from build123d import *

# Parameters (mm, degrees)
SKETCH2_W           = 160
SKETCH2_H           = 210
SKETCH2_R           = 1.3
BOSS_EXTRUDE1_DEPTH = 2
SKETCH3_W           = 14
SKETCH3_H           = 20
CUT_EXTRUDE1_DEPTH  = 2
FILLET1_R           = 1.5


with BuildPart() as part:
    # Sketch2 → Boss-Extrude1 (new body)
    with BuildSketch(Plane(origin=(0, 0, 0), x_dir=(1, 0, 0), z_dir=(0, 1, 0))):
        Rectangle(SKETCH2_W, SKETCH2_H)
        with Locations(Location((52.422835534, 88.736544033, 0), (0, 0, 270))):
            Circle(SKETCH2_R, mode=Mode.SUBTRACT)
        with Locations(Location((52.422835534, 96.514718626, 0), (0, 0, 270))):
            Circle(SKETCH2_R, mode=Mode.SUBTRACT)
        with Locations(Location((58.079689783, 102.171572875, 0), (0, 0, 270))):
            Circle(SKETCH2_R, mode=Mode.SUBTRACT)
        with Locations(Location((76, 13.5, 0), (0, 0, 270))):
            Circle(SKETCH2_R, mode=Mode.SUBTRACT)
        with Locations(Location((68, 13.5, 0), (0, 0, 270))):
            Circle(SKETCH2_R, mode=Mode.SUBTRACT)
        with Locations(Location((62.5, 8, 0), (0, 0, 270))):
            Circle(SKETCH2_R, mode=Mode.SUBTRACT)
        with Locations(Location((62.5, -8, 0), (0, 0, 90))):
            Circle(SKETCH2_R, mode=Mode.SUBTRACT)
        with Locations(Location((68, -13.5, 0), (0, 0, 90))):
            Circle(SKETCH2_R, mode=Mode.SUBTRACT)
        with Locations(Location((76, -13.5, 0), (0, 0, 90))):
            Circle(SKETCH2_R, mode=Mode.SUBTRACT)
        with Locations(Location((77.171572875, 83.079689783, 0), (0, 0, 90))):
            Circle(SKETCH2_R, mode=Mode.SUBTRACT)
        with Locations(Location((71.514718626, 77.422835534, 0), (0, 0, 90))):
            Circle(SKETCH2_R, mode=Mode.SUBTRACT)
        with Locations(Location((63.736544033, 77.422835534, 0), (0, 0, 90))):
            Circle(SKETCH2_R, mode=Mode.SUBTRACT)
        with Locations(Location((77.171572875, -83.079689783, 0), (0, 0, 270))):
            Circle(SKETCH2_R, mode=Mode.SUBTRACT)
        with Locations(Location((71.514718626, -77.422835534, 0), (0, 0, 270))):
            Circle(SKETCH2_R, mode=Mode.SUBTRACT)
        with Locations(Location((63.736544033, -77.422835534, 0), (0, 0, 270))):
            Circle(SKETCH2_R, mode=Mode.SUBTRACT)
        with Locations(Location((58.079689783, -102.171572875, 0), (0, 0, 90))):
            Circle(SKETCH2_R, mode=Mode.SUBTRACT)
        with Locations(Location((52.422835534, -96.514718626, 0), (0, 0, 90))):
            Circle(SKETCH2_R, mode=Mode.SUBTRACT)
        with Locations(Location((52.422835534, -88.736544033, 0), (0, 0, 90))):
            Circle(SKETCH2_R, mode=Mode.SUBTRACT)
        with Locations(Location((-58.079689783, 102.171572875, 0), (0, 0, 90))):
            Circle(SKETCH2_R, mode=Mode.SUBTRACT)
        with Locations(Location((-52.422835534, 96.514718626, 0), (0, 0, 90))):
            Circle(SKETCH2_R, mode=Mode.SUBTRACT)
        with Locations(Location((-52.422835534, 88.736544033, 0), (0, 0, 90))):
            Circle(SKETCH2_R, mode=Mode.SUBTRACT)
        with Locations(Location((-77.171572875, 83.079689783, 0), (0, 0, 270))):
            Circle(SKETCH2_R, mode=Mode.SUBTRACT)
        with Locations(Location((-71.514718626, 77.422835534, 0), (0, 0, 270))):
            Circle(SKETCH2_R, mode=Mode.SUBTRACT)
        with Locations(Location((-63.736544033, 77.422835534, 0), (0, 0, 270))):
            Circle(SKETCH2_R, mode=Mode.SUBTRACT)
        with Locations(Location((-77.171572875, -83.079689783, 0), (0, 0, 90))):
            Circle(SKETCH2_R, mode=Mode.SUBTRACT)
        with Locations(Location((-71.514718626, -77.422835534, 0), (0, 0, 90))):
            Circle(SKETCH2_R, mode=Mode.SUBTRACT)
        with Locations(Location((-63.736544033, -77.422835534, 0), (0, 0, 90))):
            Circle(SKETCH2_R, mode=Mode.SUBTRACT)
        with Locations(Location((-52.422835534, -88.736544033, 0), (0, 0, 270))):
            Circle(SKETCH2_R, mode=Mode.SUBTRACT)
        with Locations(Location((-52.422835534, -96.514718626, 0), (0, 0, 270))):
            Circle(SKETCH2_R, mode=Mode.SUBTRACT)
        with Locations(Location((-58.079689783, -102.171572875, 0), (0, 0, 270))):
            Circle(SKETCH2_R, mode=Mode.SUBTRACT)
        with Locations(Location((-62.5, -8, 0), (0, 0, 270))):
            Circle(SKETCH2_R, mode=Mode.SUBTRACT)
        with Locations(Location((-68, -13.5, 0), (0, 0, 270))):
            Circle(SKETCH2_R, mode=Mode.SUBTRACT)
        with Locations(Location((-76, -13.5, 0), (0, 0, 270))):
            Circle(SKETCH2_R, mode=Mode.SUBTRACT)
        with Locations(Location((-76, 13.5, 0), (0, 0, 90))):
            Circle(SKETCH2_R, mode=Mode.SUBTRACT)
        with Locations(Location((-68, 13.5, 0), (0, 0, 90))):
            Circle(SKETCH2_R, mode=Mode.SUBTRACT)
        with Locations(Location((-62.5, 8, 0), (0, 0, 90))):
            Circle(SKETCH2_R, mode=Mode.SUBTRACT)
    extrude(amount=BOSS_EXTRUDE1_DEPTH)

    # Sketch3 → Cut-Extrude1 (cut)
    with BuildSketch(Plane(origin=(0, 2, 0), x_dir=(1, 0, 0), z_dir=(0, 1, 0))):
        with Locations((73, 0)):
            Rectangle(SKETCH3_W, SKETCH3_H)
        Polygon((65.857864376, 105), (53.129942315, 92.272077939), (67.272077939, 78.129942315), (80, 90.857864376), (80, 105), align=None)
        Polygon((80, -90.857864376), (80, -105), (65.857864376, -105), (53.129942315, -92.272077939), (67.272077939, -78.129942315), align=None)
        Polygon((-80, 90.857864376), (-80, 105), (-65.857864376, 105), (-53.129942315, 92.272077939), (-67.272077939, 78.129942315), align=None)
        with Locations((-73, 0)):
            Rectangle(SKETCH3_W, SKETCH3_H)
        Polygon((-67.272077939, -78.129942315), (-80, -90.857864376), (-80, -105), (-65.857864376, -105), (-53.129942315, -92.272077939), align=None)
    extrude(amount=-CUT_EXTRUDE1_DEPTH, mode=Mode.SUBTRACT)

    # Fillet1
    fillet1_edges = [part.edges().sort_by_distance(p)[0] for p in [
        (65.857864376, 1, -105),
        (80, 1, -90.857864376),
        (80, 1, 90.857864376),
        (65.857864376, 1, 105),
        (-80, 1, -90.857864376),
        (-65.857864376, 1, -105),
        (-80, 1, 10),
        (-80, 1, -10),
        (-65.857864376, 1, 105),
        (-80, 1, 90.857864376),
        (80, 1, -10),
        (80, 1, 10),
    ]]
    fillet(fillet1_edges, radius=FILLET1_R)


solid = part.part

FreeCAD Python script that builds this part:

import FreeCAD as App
import Part
import Sketcher
from FreeCAD import Vector
Q = App.Units.Quantity


def edges_at(feature, points):
    """Names of the edges that pass closest to the given points."""
    edges = feature.Shape.Edges
    near = lambda p: min(range(len(edges)), key=lambda i: edges[i].distToShape(Part.Vertex(*p))[0])
    return sorted({f"Edge{near(p) + 1}" for p in points})


def add_polygon(sketch, points):
    """Adds a closed chain of lines whose ends are joined by coincident constraints."""
    first, n = sketch.GeometryCount, len(points)
    for a, b in zip(points, points[1:] + points[:1]):
        sketch.addGeometry(Part.LineSegment(App.Vector(*a, 0), App.Vector(*b, 0)), False)
    for i in range(n):
        sketch.addConstraint(Sketcher.Constraint("Coincident", first + i, 2, first + (i + 1) % n, 1))

doc = App.newDocument("Part")
body = doc.addObject("PartDesign::Body", "Body")

# Sketch on XZ plane
sketch1 = body.newObject("Sketcher::SketchObject", "Sketch")
sketch1.AttachmentSupport = (doc.getObject("XZ_Plane"), [""])
sketch1.MapMode = "FlatFace"
add_polygon(sketch1, [(-80, -105), (-80, 105), (80, 105), (80, -105)])  # lines 0-3
sketch1.addGeometry(Part.Circle(Vector(-77.171573, 83.07969, 0), Vector(0, 0, 1), 1.3), False)  # 4
sketch1.addGeometry(Part.Circle(Vector(-58.07969, 102.171573, 0), Vector(0, 0, 1), 1.3), False)  # 5
sketch1.addGeometry(Part.Circle(Vector(-52.422836, 96.514719, 0), Vector(0, 0, 1), 1.3), False)  # 6
sketch1.addGeometry(Part.Circle(Vector(-52.422836, 88.736544, 0), Vector(0, 0, 1), 1.3), False)  # 7
sketch1.addGeometry(Part.Circle(Vector(-71.514719, 77.422836, 0), Vector(0, 0, 1), 1.3), False)  # 8
sketch1.addGeometry(Part.Circle(Vector(-63.736544, 77.422836, 0), Vector(0, 0, 1), 1.3), False)  # 9
sketch1.addGeometry(Part.Circle(Vector(-76, 13.5, 0), Vector(0, 0, 1), 1.3), False)  # 10
sketch1.addGeometry(Part.Circle(Vector(-68, 13.5, 0), Vector(0, 0, 1), 1.3), False)  # 11
sketch1.addGeometry(Part.Circle(Vector(-62.5, 8, 0), Vector(0, 0, 1), 1.3), False)  # 12
sketch1.addGeometry(Part.Circle(Vector(58.07969, 102.171573, 0), Vector(0, 0, 1), 1.3), False)  # 13
sketch1.addGeometry(Part.Circle(Vector(52.422836, 96.514719, 0), Vector(0, 0, 1), 1.3), False)  # 14
sketch1.addGeometry(Part.Circle(Vector(52.422836, 88.736544, 0), Vector(0, 0, 1), 1.3), False)  # 15
sketch1.addGeometry(Part.Circle(Vector(77.171573, 83.07969, 0), Vector(0, 0, 1), 1.3), False)  # 16
sketch1.addGeometry(Part.Circle(Vector(63.736544, 77.422836, 0), Vector(0, 0, 1), 1.3), False)  # 17
sketch1.addGeometry(Part.Circle(Vector(71.514719, 77.422836, 0), Vector(0, 0, 1), 1.3), False)  # 18
sketch1.addGeometry(Part.Circle(Vector(68, 13.5, 0), Vector(0, 0, 1), 1.3), False)  # 19
sketch1.addGeometry(Part.Circle(Vector(76, 13.5, 0), Vector(0, 0, 1), 1.3), False)  # 20
sketch1.addGeometry(Part.Circle(Vector(62.5, 8, 0), Vector(0, 0, 1), 1.3), False)  # 21
sketch1.addGeometry(Part.Circle(Vector(-62.5, -8, 0), Vector(0, 0, 1), 1.3), False)  # 22
sketch1.addGeometry(Part.Circle(Vector(-76, -13.5, 0), Vector(0, 0, 1), 1.3), False)  # 23
sketch1.addGeometry(Part.Circle(Vector(-68, -13.5, 0), Vector(0, 0, 1), 1.3), False)  # 24
sketch1.addGeometry(Part.Circle(Vector(-71.514719, -77.422836, 0), Vector(0, 0, 1), 1.3), False)  # 25
sketch1.addGeometry(Part.Circle(Vector(-63.736544, -77.422836, 0), Vector(0, 0, 1), 1.3), False)  # 26
sketch1.addGeometry(Part.Circle(Vector(-77.171573, -83.07969, 0), Vector(0, 0, 1), 1.3), False)  # 27
sketch1.addGeometry(Part.Circle(Vector(-52.422836, -88.736544, 0), Vector(0, 0, 1), 1.3), False)  # 28
sketch1.addGeometry(Part.Circle(Vector(-52.422836, -96.514719, 0), Vector(0, 0, 1), 1.3), False)  # 29
sketch1.addGeometry(Part.Circle(Vector(-58.07969, -102.171573, 0), Vector(0, 0, 1), 1.3), False)  # 30
sketch1.addGeometry(Part.Circle(Vector(62.5, -8, 0), Vector(0, 0, 1), 1.3), False)  # 31
sketch1.addGeometry(Part.Circle(Vector(68, -13.5, 0), Vector(0, 0, 1), 1.3), False)  # 32
sketch1.addGeometry(Part.Circle(Vector(76, -13.5, 0), Vector(0, 0, 1), 1.3), False)  # 33
sketch1.addGeometry(Part.Circle(Vector(63.736544, -77.422836, 0), Vector(0, 0, 1), 1.3), False)  # 34
sketch1.addGeometry(Part.Circle(Vector(71.514719, -77.422836, 0), Vector(0, 0, 1), 1.3), False)  # 35
sketch1.addGeometry(Part.Circle(Vector(52.422836, -88.736544, 0), Vector(0, 0, 1), 1.3), False)  # 36
sketch1.addGeometry(Part.Circle(Vector(52.422836, -96.514719, 0), Vector(0, 0, 1), 1.3), False)  # 37
sketch1.addGeometry(Part.Circle(Vector(58.07969, -102.171573, 0), Vector(0, 0, 1), 1.3), False)  # 38
sketch1.addGeometry(Part.Circle(Vector(77.171573, -83.07969, 0), Vector(0, 0, 1), 1.3), False)  # 39
sketch1.addConstraint([
    Sketcher.Constraint("Vertical", 0),
    Sketcher.Constraint("Horizontal", 1),
    Sketcher.Constraint("Vertical", 2),
    Sketcher.Constraint("Horizontal", 3),
    Sketcher.Constraint("Equal", 4, 5),
    Sketcher.Constraint("Equal", 5, 6),
    Sketcher.Constraint("Equal", 6, 7),
    Sketcher.Constraint("Equal", 7, 8),
    Sketcher.Constraint("Equal", 8, 9),
    Sketcher.Constraint("Equal", 9, 10),
    Sketcher.Constraint("Equal", 10, 11),
    Sketcher.Constraint("Equal", 11, 12),
    Sketcher.Constraint("Equal", 12, 13),
    Sketcher.Constraint("Equal", 13, 14),
    Sketcher.Constraint("Equal", 14, 15),
    Sketcher.Constraint("Equal", 15, 16),
    Sketcher.Constraint("Equal", 16, 17),
    Sketcher.Constraint("Equal", 17, 18),
    Sketcher.Constraint("Equal", 18, 19),
    Sketcher.Constraint("Equal", 19, 20),
    Sketcher.Constraint("Equal", 20, 21),
    Sketcher.Constraint("Equal", 21, 22),
    Sketcher.Constraint("Equal", 22, 23),
    Sketcher.Constraint("Equal", 23, 24),
    Sketcher.Constraint("Equal", 24, 25),
    Sketcher.Constraint("Equal", 25, 26),
    Sketcher.Constraint("Equal", 26, 27),
    Sketcher.Constraint("Equal", 27, 28),
    Sketcher.Constraint("Equal", 28, 29),
    Sketcher.Constraint("Equal", 29, 30),
    Sketcher.Constraint("Equal", 30, 31),
    Sketcher.Constraint("Equal", 31, 32),
    Sketcher.Constraint("Equal", 32, 33),
    Sketcher.Constraint("Equal", 33, 34),
    Sketcher.Constraint("Equal", 34, 35),
    Sketcher.Constraint("Equal", 35, 36),
    Sketcher.Constraint("Equal", 36, 37),
    Sketcher.Constraint("Equal", 37, 38),
    Sketcher.Constraint("Equal", 38, 39),
    Sketcher.Constraint("Symmetric", 21, 3, 22, 3, -1, 1),
    Sketcher.Constraint("Symmetric", 20, 3, 23, 3, -1, 1),
    Sketcher.Constraint("Symmetric", 19, 3, 24, 3, -1, 1),
    Sketcher.Constraint("Symmetric", 18, 3, 25, 3, -1, 1),
    Sketcher.Constraint("Symmetric", 17, 3, 26, 3, -1, 1),
    Sketcher.Constraint("Symmetric", 16, 3, 27, 3, -1, 1),
    Sketcher.Constraint("Symmetric", 15, 3, 28, 3, -1, 1),
    Sketcher.Constraint("Symmetric", 14, 3, 29, 3, -1, 1),
    Sketcher.Constraint("Symmetric", 13, 3, 30, 3, -1, 1),
    Sketcher.Constraint("Symmetric", 12, 3, 31, 3, -1, 1),
    Sketcher.Constraint("Symmetric", 11, 3, 32, 3, -1, 1),
    Sketcher.Constraint("Symmetric", 10, 3, 33, 3, -1, 1),
    Sketcher.Constraint("Symmetric", 9, 3, 34, 3, -1, 1),
    Sketcher.Constraint("Symmetric", 8, 3, 35, 3, -1, 1),
    Sketcher.Constraint("Symmetric", 7, 3, 36, 3, -1, 1),
    Sketcher.Constraint("Symmetric", 6, 3, 37, 3, -1, 1),
    Sketcher.Constraint("Symmetric", 5, 3, 38, 3, -1, 1),
    Sketcher.Constraint("Symmetric", 4, 3, 39, 3, -1, 1),
    Sketcher.Constraint("Symmetric", 0, 2, 2, 2, -1, 1),
    Sketcher.Constraint("Symmetric", 5, 3, 13, 3, -2),
    Sketcher.Constraint("Symmetric", 6, 3, 14, 3, -2),
    Sketcher.Constraint("Symmetric", 7, 3, 15, 3, -2),
    Sketcher.Constraint("Symmetric", 4, 3, 16, 3, -2),
    Sketcher.Constraint("Symmetric", 9, 3, 17, 3, -2),
    Sketcher.Constraint("Symmetric", 8, 3, 18, 3, -2),
    Sketcher.Constraint("Symmetric", 11, 3, 19, 3, -2),
    Sketcher.Constraint("Symmetric", 10, 3, 20, 3, -2),
    Sketcher.Constraint("Symmetric", 12, 3, 21, 3, -2),
    Sketcher.Constraint("Horizontal", 8, 3, 9, 3),
    Sketcher.Constraint("Horizontal", 10, 3, 11, 3),
    Sketcher.Constraint("Vertical", 6, 3, 7, 3),
    Sketcher.Constraint("Diameter", 4, Q("2.6 mm")),
    Sketcher.Constraint("DistanceX", 1, 1, 1, 2, Q("160 mm")),
    Sketcher.Constraint("DistanceY", 0, 1, 0, 2, Q("210 mm")),
    Sketcher.Constraint("DistanceX", 10, 3, -1, 1, Q("76 mm")),
    Sketcher.Constraint("DistanceX", 11, 3, -1, 1, Q("68 mm")),
    Sketcher.Constraint("DistanceY", -1, 1, 12, 3, Q("8 mm")),
    Sketcher.Constraint("DistanceY", 23, 3, 10, 3, Q("27 mm")),
    Sketcher.Constraint("DistanceX", 12, 3, -1, 1, Q("62.5 mm")),
    Sketcher.Constraint("DistanceY", -1, 1, 4, 3, Q("83.07969 mm")),
    Sketcher.Constraint("DistanceX", 5, 3, -1, 1, Q("58.07969 mm")),
    Sketcher.Constraint("DistanceY", -1, 1, 6, 3, Q("96.514719 mm")),
    Sketcher.Constraint("DistanceX", 8, 3, -1, 1, Q("71.514719 mm")),
    Sketcher.Constraint("DistanceY", 7, 3, 5, 3, Q("13.435029 mm")),
    Sketcher.Constraint("DistanceY", 8, 3, 7, 3, Q("11.313708 mm")),
    Sketcher.Constraint("DistanceX", 4, 3, 9, 3, Q("13.435029 mm")),
    Sketcher.Constraint("DistanceX", 9, 3, 7, 3, Q("11.313708 mm")),
    Sketcher.Constraint("DistanceX", 6, 3, 14, 3, Q("104.845671 mm")),
    Sketcher.Constraint("DistanceY", -1, 1, 5, 3, Q("102.171573 mm")),
])
pad1 = body.newObject("PartDesign::Pad", "Pad")
pad1.Profile = sketch1
pad1.Length = 2
pad1.Reversed = True

# Sketch on XZ plane
sketch2 = body.newObject("Sketcher::SketchObject", "Sketch001")
sketch2.AttachmentSupport = (doc.getObject("XZ_Plane"), [""])
sketch2.MapMode = "FlatFace"
sketch2.AttachmentOffset = App.Placement(Vector(0, 0, -2), App.Rotation())
add_polygon(sketch2, [(66, -10), (66, 10), (80, 10), (80, -10)])  # lines 0-3
add_polygon(sketch2, [(65.857864, -105), (53.129942, -92.272078), (67.272078, -78.129942), (80, -90.857864), (80, -105)])  # lines 4-8
add_polygon(sketch2, [(80, 105), (80, 90.857864), (67.272078, 78.129942), (53.129942, 92.272078), (65.857864, 105)])  # lines 9-13
add_polygon(sketch2, [(-80, -105), (-80, -90.857864), (-67.272078, -78.129942), (-53.129942, -92.272078), (-65.857864, -105)])  # lines 14-18
add_polygon(sketch2, [(-80, -10), (-80, 10), (-66, 10), (-66, -10)])  # lines 19-22
add_polygon(sketch2, [(-67.272078, 78.129942), (-80, 90.857864), (-80, 105), (-65.857864, 105), (-53.129942, 92.272078)])  # lines 23-27
sketch2.addConstraint([
    Sketcher.Constraint("Vertical", 0),
    Sketcher.Constraint("Horizontal", 1),
    Sketcher.Constraint("Vertical", 2),
    Sketcher.Constraint("Horizontal", 3),
    Sketcher.Constraint("Vertical", 7),
    Sketcher.Constraint("Horizontal", 8),
    Sketcher.Constraint("Vertical", 9),
    Sketcher.Constraint("Horizontal", 13),
    Sketcher.Constraint("Vertical", 14),
    Sketcher.Constraint("Horizontal", 18),
    Sketcher.Constraint("Vertical", 19),
    Sketcher.Constraint("Horizontal", 20),
    Sketcher.Constraint("Vertical", 21),
    Sketcher.Constraint("Horizontal", 22),
    Sketcher.Constraint("Vertical", 24),
    Sketcher.Constraint("Horizontal", 25),
    Sketcher.Constraint("Symmetric", 9, 2, 14, 2, -1, 1),
    Sketcher.Constraint("Symmetric", 10, 2, 15, 2, -1, 1),
    Sketcher.Constraint("Symmetric", 11, 2, 16, 2, -1, 1),
    Sketcher.Constraint("Symmetric", 12, 2, 17, 2, -1, 1),
    Sketcher.Constraint("Symmetric", 2, 2, 19, 2, -1, 1),
    Sketcher.Constraint("Symmetric", 0, 2, 21, 2, -1, 1),
    Sketcher.Constraint("Symmetric", 6, 2, 23, 2, -1, 1),
    Sketcher.Constraint("Symmetric", 8, 2, 25, 2, -1, 1),
    Sketcher.Constraint("Symmetric", 4, 2, 26, 2, -1, 1),
    Sketcher.Constraint("Symmetric", 5, 2, 27, 2, -1, 1),
    Sketcher.Constraint("Symmetric", 6, 2, 14, 2, -2),
    Sketcher.Constraint("Symmetric", 5, 2, 15, 2, -2),
    Sketcher.Constraint("Symmetric", 4, 2, 16, 2, -2),
    Sketcher.Constraint("Symmetric", 8, 2, 17, 2, -2),
    Sketcher.Constraint("Perpendicular", 4, 5),
    Sketcher.Constraint("Perpendicular", 5, 6),
    Sketcher.Constraint("Perpendicular", 6, 10),
    Sketcher.Constraint("Horizontal", 1, 2, 19, 2),
    Sketcher.Constraint("Vertical", 2, 2, 6, 2),
    Sketcher.Constraint("Equal", 25, 7),
    Sketcher.Constraint("DistanceX", 1, 1, 1, 2, Q("14 mm")),
    Sketcher.Constraint("DistanceY", 0, 1, 0, 2, Q("20 mm")),
    Sketcher.Constraint("Distance", 4, Q("18 mm")),
    Sketcher.Constraint("Distance", 5, Q("20 mm")),
    Sketcher.Constraint("DistanceX", -1, 1, 0, 2, Q("66 mm")),
    Sketcher.Constraint("DistanceY", 7, 2, -1, 1, Q("105 mm")),
])
pocket1 = body.newObject("PartDesign::Pocket", "Pocket")
pocket1.Profile = sketch2
pocket1.Length = 2
pocket1.Reversed = True
doc.recompute()

fillet = body.newObject("PartDesign::Fillet", "Fillet")
fillet.Base = (pocket1, edges_at(pocket1, [
    (65.858, 1, -105),
    (80, 1, -90.858),
    (80, 1, 90.858),
    (65.858, 1, 105),
    (-80, 1, -90.858),
    (-65.858, 1, -105),
    (-80, 1, 10),
    (-80, 1, -10),
    (-65.858, 1, 105),
    (-80, 1, 90.858),
    (80, 1, -10),
    (80, 1, 10),
]))
fillet.Radius = 1.5

doc.recompute()
